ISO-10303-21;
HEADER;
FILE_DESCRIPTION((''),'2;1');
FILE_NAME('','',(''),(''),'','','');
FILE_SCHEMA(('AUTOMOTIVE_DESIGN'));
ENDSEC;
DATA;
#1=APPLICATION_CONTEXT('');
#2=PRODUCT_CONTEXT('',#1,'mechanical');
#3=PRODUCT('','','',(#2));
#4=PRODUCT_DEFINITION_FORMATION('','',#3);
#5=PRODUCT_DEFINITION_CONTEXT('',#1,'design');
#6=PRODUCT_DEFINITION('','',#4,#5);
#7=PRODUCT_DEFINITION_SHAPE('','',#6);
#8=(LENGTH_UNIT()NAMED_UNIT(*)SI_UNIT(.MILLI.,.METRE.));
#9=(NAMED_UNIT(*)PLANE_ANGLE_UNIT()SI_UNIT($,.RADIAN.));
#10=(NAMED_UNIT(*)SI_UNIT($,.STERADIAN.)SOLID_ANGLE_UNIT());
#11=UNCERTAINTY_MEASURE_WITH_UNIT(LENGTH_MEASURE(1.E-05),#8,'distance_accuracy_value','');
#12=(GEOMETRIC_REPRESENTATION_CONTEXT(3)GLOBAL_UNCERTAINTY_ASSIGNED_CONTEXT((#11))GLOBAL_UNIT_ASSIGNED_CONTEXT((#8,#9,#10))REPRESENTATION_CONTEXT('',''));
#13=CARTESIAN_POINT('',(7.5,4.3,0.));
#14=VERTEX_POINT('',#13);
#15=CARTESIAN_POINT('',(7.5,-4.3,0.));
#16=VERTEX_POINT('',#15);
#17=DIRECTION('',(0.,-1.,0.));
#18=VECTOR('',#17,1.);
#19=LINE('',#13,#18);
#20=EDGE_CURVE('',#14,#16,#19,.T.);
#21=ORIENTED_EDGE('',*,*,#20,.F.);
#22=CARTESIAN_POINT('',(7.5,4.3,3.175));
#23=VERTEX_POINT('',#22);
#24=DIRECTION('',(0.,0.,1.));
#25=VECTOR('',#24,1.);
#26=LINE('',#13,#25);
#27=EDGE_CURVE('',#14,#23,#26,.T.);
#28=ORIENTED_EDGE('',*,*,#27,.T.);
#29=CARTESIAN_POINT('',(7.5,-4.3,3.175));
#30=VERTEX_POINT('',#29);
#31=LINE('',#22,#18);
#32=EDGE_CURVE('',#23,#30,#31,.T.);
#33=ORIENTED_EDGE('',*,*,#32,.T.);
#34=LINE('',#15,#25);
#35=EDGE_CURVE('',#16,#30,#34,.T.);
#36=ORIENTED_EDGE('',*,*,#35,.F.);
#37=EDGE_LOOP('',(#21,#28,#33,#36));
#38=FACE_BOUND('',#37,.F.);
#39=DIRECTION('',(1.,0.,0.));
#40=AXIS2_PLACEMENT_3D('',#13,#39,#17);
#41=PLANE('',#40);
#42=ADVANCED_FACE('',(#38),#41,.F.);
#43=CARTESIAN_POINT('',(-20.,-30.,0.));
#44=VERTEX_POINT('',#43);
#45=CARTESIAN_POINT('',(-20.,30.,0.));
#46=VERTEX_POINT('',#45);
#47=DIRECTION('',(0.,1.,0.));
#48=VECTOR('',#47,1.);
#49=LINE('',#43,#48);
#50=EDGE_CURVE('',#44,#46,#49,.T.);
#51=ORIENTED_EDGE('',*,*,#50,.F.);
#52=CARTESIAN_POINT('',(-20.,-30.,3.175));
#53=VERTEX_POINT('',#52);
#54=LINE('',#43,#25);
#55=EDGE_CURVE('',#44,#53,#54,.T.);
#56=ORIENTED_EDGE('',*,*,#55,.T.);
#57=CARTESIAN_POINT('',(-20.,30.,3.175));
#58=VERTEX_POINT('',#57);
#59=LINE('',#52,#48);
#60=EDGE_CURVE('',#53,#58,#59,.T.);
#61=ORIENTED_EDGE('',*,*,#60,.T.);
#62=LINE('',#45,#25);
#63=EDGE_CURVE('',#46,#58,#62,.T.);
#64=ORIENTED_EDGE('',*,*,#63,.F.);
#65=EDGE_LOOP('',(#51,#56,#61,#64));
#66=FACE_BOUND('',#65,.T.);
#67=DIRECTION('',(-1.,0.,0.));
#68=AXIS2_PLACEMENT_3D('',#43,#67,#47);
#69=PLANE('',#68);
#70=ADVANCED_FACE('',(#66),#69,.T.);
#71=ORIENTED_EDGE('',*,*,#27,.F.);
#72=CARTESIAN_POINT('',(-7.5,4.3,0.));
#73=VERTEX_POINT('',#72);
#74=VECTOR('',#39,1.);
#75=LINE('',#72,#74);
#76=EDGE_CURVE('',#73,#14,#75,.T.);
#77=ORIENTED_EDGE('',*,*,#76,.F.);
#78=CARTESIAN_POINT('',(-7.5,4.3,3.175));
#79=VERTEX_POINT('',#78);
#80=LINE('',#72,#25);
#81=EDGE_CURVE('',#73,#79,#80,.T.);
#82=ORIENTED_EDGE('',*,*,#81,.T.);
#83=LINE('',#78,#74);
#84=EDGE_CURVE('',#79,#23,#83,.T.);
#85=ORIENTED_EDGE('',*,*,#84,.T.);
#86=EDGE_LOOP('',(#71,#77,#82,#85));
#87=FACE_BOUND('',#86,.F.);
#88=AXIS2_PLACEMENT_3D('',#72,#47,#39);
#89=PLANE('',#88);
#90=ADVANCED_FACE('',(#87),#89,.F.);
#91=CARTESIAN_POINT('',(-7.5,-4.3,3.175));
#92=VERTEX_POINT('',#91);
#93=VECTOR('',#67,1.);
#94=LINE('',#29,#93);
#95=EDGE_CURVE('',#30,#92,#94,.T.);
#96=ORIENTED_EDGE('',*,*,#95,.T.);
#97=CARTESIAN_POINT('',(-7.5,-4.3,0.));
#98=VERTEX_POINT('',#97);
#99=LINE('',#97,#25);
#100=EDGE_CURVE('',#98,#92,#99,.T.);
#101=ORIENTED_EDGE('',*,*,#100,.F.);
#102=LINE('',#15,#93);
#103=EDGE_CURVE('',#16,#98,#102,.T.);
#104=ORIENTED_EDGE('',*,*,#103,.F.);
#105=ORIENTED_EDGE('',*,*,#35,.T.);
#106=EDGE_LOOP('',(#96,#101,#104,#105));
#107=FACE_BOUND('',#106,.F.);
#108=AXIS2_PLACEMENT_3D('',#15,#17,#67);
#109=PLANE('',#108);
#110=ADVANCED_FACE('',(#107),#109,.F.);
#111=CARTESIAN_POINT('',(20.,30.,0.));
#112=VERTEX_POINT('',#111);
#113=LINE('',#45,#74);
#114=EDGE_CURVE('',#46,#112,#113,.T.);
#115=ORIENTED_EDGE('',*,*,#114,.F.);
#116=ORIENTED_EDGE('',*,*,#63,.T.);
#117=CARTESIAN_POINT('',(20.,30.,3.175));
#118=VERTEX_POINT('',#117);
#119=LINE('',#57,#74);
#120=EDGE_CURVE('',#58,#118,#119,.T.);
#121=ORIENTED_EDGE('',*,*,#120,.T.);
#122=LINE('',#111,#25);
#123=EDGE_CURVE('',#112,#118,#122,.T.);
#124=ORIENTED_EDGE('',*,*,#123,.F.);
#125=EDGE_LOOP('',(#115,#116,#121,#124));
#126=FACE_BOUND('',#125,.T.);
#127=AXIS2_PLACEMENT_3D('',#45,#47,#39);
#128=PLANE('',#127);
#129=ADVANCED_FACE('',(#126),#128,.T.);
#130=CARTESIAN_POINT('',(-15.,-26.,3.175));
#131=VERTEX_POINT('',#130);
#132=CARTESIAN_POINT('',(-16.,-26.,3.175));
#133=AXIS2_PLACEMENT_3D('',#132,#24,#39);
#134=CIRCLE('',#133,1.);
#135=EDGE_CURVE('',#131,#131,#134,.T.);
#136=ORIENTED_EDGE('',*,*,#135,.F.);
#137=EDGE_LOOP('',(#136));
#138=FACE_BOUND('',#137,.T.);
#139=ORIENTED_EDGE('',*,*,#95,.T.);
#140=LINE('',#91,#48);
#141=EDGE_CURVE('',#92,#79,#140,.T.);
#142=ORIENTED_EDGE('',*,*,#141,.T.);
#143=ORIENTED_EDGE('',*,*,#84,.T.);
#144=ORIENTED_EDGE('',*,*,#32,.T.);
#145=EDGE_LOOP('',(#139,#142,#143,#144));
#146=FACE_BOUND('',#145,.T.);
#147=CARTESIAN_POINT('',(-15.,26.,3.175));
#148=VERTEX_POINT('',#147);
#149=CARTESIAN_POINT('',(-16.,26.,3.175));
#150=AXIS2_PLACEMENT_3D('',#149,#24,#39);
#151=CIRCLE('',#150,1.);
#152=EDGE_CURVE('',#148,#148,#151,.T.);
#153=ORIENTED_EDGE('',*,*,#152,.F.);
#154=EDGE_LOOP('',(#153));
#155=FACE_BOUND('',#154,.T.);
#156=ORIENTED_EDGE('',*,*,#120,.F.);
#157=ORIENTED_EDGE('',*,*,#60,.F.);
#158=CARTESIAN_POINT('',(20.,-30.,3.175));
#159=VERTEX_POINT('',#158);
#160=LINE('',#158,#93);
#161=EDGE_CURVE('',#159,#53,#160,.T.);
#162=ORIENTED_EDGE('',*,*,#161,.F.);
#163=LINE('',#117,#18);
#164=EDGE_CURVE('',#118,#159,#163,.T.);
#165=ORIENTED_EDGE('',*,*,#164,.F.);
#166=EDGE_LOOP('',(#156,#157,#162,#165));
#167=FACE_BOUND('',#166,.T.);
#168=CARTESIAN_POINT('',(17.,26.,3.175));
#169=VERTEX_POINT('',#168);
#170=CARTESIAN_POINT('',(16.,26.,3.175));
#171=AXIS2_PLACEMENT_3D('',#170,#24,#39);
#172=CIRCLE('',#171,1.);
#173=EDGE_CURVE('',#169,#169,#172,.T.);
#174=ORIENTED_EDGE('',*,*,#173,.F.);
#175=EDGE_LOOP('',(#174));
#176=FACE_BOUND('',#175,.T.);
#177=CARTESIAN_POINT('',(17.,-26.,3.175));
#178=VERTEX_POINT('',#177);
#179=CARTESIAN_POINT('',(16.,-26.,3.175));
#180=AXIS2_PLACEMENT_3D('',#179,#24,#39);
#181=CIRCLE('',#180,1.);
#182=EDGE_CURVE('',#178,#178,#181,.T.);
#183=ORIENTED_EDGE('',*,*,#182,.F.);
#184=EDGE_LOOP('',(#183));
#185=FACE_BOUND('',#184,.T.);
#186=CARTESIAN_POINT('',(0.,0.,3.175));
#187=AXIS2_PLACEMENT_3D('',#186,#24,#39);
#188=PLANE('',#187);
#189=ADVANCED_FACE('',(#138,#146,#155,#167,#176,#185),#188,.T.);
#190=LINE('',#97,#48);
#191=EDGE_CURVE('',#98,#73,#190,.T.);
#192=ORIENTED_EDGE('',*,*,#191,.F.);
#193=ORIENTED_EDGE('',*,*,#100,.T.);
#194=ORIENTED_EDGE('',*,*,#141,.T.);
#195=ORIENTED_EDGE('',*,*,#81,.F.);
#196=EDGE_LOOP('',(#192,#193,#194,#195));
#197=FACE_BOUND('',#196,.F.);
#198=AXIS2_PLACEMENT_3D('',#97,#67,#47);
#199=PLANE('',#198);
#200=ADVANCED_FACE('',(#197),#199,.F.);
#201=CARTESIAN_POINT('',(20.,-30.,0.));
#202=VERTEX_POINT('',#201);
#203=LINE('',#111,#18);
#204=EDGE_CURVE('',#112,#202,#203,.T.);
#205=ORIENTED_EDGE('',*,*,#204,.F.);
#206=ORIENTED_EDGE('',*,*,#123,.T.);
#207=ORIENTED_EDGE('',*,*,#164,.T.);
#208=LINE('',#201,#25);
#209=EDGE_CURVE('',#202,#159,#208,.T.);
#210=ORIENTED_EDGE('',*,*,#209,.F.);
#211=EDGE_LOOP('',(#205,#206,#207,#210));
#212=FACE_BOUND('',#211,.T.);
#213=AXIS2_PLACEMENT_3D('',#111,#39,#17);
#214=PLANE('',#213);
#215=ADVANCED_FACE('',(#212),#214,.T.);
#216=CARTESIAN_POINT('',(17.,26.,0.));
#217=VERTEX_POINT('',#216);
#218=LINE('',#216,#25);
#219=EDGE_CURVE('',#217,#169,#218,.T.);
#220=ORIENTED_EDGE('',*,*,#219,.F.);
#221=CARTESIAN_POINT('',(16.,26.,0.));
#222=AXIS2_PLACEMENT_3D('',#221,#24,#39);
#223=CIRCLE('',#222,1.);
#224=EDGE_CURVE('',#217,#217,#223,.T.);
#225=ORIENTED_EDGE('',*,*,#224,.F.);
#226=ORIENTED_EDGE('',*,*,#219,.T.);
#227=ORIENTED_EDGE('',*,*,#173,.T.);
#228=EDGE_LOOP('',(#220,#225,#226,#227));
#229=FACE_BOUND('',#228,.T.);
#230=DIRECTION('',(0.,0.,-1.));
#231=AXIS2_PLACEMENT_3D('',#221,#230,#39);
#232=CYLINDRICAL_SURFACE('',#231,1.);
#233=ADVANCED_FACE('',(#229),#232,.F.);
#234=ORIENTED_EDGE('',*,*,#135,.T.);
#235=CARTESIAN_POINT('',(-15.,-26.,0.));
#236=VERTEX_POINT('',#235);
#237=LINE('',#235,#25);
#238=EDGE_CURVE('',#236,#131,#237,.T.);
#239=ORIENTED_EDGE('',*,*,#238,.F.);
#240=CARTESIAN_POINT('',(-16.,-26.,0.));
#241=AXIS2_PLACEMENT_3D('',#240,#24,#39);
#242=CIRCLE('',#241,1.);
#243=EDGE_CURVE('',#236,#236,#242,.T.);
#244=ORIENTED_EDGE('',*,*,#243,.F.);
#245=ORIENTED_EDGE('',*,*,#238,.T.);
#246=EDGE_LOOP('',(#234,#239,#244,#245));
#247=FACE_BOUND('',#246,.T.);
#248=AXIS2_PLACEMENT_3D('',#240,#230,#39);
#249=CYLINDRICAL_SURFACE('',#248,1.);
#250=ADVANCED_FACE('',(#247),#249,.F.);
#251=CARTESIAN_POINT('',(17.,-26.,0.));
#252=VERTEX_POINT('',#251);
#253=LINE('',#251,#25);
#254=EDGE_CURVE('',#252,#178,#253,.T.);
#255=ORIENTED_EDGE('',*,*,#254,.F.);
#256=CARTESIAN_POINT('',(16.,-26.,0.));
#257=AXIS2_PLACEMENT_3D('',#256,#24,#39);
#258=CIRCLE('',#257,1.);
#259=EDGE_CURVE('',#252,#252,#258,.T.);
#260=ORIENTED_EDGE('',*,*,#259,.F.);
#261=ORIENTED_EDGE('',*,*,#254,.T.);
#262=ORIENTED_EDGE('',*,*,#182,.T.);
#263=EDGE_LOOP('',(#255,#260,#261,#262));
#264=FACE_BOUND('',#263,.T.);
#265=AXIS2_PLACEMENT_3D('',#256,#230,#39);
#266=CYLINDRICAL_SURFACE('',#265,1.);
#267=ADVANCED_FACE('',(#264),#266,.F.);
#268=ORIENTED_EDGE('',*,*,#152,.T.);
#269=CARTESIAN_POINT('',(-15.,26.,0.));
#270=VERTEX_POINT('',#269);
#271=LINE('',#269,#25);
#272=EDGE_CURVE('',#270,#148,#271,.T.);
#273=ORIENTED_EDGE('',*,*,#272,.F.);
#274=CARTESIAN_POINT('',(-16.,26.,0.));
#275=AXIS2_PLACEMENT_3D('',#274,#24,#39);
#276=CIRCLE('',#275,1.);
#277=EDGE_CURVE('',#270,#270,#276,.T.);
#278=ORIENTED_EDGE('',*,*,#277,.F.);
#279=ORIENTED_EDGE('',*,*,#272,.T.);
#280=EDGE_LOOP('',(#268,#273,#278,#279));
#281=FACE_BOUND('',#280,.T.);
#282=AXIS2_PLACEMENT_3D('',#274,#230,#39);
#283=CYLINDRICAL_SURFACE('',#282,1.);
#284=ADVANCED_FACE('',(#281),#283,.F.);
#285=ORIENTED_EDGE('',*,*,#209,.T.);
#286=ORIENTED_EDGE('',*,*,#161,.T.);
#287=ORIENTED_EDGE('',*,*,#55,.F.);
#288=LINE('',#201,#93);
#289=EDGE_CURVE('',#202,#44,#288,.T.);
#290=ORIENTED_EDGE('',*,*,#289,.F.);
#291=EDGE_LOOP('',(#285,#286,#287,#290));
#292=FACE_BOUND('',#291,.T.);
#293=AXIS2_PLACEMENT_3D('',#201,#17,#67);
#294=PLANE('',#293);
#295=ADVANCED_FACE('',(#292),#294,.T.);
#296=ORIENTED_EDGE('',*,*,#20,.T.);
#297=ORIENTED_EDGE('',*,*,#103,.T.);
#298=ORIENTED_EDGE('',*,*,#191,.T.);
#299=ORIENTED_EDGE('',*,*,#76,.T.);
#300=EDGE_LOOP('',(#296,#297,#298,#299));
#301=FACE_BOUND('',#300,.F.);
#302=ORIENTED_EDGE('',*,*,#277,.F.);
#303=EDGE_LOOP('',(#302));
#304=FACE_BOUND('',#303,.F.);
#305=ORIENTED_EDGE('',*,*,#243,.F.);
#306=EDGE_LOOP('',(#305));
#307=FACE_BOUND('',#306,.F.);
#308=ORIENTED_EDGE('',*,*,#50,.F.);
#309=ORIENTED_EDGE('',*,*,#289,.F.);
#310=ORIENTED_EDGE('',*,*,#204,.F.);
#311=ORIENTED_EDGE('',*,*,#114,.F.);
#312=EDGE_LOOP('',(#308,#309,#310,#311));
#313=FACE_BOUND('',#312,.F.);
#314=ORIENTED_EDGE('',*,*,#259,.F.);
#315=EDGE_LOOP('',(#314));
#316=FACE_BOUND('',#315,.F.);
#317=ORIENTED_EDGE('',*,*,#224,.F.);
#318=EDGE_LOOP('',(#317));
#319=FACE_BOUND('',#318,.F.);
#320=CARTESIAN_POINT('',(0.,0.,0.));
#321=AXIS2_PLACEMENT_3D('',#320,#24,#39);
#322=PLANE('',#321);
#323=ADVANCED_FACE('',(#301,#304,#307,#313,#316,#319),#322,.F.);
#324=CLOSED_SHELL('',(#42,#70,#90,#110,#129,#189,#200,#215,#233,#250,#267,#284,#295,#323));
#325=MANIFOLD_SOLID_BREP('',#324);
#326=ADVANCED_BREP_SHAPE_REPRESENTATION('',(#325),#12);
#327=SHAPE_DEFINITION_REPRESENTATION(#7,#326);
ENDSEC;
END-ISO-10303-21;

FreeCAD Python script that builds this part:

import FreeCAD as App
import Part
import Sketcher
Q = App.Units.Quantity


def add_polygon(sketch, points):
    """Adds a closed chain of lines whose ends are joined by coincident constraints."""
    first, n = sketch.GeometryCount, len(points)
    for a, b in zip(points, points[1:] + points[:1]):
        sketch.addGeometry(Part.LineSegment(App.Vector(*a, 0), App.Vector(*b, 0)), False)
    for i in range(n):
        sketch.addConstraint(Sketcher.Constraint("Coincident", first + i, 2, first + (i + 1) % n, 1))

doc = App.newDocument("Part")
body = doc.addObject("PartDesign::Body", "Body")

sketch1 = body.newObject("Sketcher::SketchObject", "Sketch")
sketch1.AttachmentSupport = (doc.getObject("XY_Plane"), [""])
sketch1.MapMode = "FlatFace"
add_polygon(sketch1, [(20, 30), (-20, 30), (-20, -30), (20, -30)])
sketch1.addGeometry(Part.Circle(App.Vector(-16, -26, 0), App.Vector(0, 0, 1), 1), False)
sketch1.addGeometry(Part.Circle(App.Vector(16, -26, 0), App.Vector(0, 0, 1), 1), False)
sketch1.addGeometry(Part.Circle(App.Vector(-16, 26, 0), App.Vector(0, 0, 1), 1), False)
add_polygon(sketch1, [(-7.5, -4.3), (-7.5, 4.3), (7.5, 4.3), (7.5, -4.3)])
sketch1.addGeometry(Part.Circle(App.Vector(16, 26, 0), App.Vector(0, 0, 1), 1), False)
sketch1.addConstraint(Sketcher.Constraint("Horizontal", 0))
sketch1.addConstraint(Sketcher.Constraint("Vertical", 1))
sketch1.addConstraint(Sketcher.Constraint("Horizontal", 2))
sketch1.addConstraint(Sketcher.Constraint("Vertical", 3))
sketch1.addConstraint(Sketcher.Constraint("Vertical", 7))
sketch1.addConstraint(Sketcher.Constraint("Horizontal", 8))
sketch1.addConstraint(Sketcher.Constraint("Vertical", 9))
sketch1.addConstraint(Sketcher.Constraint("Horizontal", 10))
sketch1.addConstraint(Sketcher.Constraint("Equal", 4, 5))
sketch1.addConstraint(Sketcher.Constraint("Equal", 5, 6))
sketch1.addConstraint(Sketcher.Constraint("Equal", 6, 11))
sketch1.addConstraint(Sketcher.Constraint("Symmetric", 5, 3, 6, 3, -1, 1))
sketch1.addConstraint(Sketcher.Constraint("Symmetric", 4, 3, 11, 3, -1, 1))
sketch1.addConstraint(Sketcher.Constraint("Symmetric", 0, 2, 2, 2, -1, 1))
sketch1.addConstraint(Sketcher.Constraint("Symmetric", 7, 2, 9, 2, -1, 1))
sketch1.addConstraint(Sketcher.Constraint("Symmetric", 4, 3, 5, 3, -2))
sketch1.addConstraint(Sketcher.Constraint("Diameter", 4, Q("2 mm")))
sketch1.addConstraint(Sketcher.Constraint("DistanceX", 0, 2, 0, 1, Q("40 mm")))
sketch1.addConstraint(Sketcher.Constraint("DistanceX", 8, 1, 8, 2, Q("15 mm")))
sketch1.addConstraint(Sketcher.Constraint("DistanceY", 1, 2, 1, 1, Q("60 mm")))
sketch1.addConstraint(Sketcher.Constraint("DistanceY", 7, 1, 7, 2, Q("8.6 mm")))
sketch1.addConstraint(Sketcher.Constraint("DistanceX", 4, 3, 5, 3, Q("32 mm")))
sketch1.addConstraint(Sketcher.Constraint("DistanceY", 4, 3, 6, 3, Q("52 mm")))
pad1 = body.newObject("PartDesign::Pad", "Pad")
pad1.Profile = sketch1
pad1.Length = 3.175

doc.recompute()
